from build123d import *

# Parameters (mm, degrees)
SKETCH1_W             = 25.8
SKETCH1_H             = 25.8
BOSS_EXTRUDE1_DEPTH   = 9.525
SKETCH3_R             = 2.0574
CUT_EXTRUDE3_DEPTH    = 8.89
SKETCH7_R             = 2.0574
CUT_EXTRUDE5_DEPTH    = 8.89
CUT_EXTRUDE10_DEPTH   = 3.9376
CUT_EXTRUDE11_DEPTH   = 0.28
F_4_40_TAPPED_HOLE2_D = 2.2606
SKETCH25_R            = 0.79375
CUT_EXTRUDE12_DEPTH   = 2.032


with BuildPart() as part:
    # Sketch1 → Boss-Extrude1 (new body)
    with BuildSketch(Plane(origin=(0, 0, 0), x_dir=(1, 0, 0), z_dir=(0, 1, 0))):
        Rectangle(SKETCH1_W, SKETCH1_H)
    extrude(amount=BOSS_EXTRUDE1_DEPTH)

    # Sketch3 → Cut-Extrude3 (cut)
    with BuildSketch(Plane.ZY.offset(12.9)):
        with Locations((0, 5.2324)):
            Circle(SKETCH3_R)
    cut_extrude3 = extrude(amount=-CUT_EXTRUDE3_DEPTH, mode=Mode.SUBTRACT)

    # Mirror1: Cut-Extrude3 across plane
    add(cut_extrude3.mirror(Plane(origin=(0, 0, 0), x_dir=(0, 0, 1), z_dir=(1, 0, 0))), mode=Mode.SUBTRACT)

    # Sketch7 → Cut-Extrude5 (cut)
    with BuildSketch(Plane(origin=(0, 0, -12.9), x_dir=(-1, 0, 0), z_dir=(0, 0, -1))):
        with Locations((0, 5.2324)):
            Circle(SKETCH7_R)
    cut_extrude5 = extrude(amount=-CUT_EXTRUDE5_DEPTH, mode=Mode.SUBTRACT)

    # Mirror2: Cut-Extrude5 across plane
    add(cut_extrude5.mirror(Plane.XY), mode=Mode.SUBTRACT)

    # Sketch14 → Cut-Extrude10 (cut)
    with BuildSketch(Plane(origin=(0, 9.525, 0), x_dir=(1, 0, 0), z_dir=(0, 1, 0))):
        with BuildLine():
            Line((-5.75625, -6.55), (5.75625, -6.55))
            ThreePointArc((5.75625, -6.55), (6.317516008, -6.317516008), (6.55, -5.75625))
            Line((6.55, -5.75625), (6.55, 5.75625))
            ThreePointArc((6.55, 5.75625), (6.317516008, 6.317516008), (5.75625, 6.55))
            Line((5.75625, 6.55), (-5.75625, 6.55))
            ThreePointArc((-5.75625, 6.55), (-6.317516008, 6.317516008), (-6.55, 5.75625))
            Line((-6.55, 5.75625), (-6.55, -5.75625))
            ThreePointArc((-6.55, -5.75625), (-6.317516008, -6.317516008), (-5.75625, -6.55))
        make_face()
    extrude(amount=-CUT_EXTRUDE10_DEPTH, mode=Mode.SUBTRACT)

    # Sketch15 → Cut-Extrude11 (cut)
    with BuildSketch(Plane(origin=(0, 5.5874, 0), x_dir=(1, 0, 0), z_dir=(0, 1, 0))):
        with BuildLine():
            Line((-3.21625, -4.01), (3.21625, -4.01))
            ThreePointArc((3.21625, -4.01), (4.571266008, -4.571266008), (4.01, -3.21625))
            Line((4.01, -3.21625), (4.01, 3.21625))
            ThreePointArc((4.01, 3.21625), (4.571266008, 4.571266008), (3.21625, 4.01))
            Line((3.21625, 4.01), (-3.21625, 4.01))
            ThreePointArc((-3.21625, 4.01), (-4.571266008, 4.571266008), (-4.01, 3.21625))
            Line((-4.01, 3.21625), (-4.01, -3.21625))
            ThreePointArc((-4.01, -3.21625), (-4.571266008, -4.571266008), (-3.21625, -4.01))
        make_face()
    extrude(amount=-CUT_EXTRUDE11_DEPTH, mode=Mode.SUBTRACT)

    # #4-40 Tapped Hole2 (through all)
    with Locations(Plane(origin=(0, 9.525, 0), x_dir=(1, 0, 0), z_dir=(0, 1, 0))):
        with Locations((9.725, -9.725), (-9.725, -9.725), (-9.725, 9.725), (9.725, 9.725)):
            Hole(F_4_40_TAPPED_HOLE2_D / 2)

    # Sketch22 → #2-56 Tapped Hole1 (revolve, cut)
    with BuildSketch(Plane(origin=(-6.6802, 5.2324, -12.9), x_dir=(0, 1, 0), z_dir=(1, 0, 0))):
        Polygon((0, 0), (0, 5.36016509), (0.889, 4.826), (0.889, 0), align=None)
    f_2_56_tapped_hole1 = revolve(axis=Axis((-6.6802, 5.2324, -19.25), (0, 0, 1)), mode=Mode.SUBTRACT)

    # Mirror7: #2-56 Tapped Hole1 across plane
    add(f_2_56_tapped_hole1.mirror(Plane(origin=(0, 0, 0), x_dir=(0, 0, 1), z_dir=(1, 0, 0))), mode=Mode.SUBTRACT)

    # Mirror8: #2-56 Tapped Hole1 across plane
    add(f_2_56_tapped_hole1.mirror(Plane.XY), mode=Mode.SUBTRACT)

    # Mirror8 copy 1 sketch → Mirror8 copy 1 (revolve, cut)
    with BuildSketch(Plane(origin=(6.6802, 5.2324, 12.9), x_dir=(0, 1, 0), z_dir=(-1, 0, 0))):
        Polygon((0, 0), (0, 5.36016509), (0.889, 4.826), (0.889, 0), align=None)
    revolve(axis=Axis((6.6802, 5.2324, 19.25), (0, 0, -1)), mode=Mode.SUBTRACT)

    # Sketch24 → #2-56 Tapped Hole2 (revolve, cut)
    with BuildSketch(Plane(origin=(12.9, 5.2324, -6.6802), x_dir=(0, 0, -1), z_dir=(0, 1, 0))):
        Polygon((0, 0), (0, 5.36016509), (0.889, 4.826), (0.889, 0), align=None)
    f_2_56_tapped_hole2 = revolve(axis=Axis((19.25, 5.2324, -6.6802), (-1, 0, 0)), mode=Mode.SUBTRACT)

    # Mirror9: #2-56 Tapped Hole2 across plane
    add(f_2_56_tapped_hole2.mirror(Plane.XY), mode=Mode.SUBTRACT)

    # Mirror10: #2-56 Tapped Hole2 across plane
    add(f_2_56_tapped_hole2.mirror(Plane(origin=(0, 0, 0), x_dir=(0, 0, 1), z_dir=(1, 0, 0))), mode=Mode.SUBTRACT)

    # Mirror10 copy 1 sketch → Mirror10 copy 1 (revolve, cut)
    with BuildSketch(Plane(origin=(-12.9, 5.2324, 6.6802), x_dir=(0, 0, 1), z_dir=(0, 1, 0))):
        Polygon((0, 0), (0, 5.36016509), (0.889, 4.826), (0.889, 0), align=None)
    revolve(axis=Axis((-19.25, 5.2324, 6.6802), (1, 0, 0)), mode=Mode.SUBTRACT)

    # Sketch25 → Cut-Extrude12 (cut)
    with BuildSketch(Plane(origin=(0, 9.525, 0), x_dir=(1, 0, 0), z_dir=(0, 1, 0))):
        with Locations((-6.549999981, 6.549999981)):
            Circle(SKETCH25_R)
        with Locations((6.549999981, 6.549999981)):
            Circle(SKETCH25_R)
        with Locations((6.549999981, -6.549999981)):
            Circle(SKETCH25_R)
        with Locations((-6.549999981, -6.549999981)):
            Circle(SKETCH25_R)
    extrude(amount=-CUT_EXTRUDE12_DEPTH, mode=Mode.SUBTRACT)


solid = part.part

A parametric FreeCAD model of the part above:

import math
import FreeCAD as App
import Part
import Sketcher

V = App.Vector
Q = App.Units.Quantity


def add_polygon(sketch, points):
    """Adds a closed chain of lines whose ends are joined by coincident constraints."""
    first, n = sketch.GeometryCount, len(points)
    for a, b in zip(points, points[1:] + points[:1]):
        sketch.addGeometry(Part.LineSegment(App.Vector(*a, 0), App.Vector(*b, 0)), False)
    for i in range(n):
        sketch.addConstraint(Sketcher.Constraint("Coincident", first + i, 2, first + (i + 1) % n, 1))

doc = App.newDocument("Part")
body = doc.addObject("PartDesign::Body", "Body")

sketch1 = body.newObject("Sketcher::SketchObject", "Sketch")
sketch1.AttachmentSupport = (doc.getObject("XZ_Plane"), [""])
sketch1.MapMode = "FlatFace"
add_polygon(sketch1, [(-13, -13), (-13, 13), (13, 13), (13, -13)])
sketch1.addConstraint([
    Sketcher.Constraint("Vertical", 0),
    Sketcher.Constraint("Horizontal", 1),
    Sketcher.Constraint("Vertical", 2),
    Sketcher.Constraint("Horizontal", 3),
    Sketcher.Constraint("Symmetric", 0, 2, 2, 2, -1, 1),
    Sketcher.Constraint("Equal", 3, 0),
    Sketcher.Constraint("DistanceX", 1, 1, 1, 2, 25.8),
])
pad1 = body.newObject("PartDesign::Pad", "Pad")
pad1.Profile = sketch1
pad1.Length = Q("0.375 in")
pad1.Reversed = True

sketch2 = body.newObject("Sketcher::SketchObject", "Sketch001")
sketch2.AttachmentSupport = (doc.getObject("YZ_Plane"), [""])
sketch2.MapMode = "FlatFace"
sketch2.AttachmentOffset = App.Placement(V(0, 0, -12.9), App.Rotation())
sketch2.addGeometry(Part.Circle(V(5.2, 0, 0), V(0, 0, 1), 2.1), False)
sketch2.addConstraint([
    Sketcher.Constraint("PointOnObject", 0, 3, -1),
    Sketcher.Constraint("Diameter", 0, Q("0.162 in")),
    Sketcher.Constraint("DistanceX", -1, 1, 0, 3, Q("0.206 in")),
])
pocket1 = body.newObject("PartDesign::Pocket", "Pocket")
pocket1.Profile = sketch2
pocket1.Length = Q("0.35 in")
pocket1.Reversed = True
doc.recompute()

mirrored = body.newObject("PartDesign::Mirrored", "Mirrored")
mirrored.Originals = [pocket1]
mirrored.MirrorPlane = (doc.getObject("YZ_Plane"), [""])
body.Tip = mirrored

sketch3 = body.newObject("Sketcher::SketchObject", "Sketch002")
sketch3.AttachmentSupport = (doc.getObject("XY_Plane"), [""])
sketch3.MapMode = "FlatFace"
sketch3.AttachmentOffset = App.Placement(V(0, 0, -12.9), App.Rotation())
sketch3.addGeometry(Part.Circle(V(0, 5.2, 0), V(0, 0, 1), 2.1), False)
sketch3.addConstraint([
    Sketcher.Constraint("PointOnObject", 0, 3, -2),
    Sketcher.Constraint("Diameter", 0, Q("0.162 in")),
    Sketcher.Constraint("DistanceY", -1, 1, 0, 3, Q("0.206 in")),
])
pocket2 = body.newObject("PartDesign::Pocket", "Pocket001")
pocket2.Profile = sketch3
pocket2.Length = Q("0.35 in")
pocket2.Reversed = True
doc.recompute()

mirrored2 = body.newObject("PartDesign::Mirrored", "Mirrored001")
mirrored2.Originals = [pocket2]
mirrored2.MirrorPlane = (doc.getObject("XY_Plane"), [""])
body.Tip = mirrored2

sketch4 = body.newObject("Sketcher::SketchObject", "Sketch003")
sketch4.AttachmentSupport = (doc.getObject("XZ_Plane"), [""])
sketch4.MapMode = "FlatFace"
sketch4.AttachmentOffset = App.Placement(V(0, 0, -0.375 * 25.4), App.Rotation())
sketch4.addGeometry([
    Part.LineSegment(V(-5.8, 6.5, 0), V(5.8, 6.5, 0)),
    Part.ArcOfCircle(Part.Circle(V(5.8, 5.8, 0), V(0, 0, 1), 0.8), math.radians(0), math.radians(90)),
    Part.LineSegment(V(6.5, 5.8, 0), V(6.5, -5.8, 0)),
    Part.ArcOfCircle(Part.Circle(V(5.8, -5.8, 0), V(0, 0, 1), 0.8), math.radians(-90), math.radians(0)),
    Part.LineSegment(V(5.8, -6.5, 0), V(-5.8, -6.5, 0)),
    Part.ArcOfCircle(Part.Circle(V(-5.8, -5.8, 0), V(0, 0, 1), 0.8), math.radians(180), math.radians(270)),
    Part.LineSegment(V(-6.5, -5.8, 0), V(-6.5, 5.8, 0)),
    Part.ArcOfCircle(Part.Circle(V(-5.8, 5.8, 0), V(0, 0, 1), 0.8), math.radians(90), math.radians(180)),
], False)
sketch4.addConstraint([
    Sketcher.Constraint("Tangent", 0, 2, 1, 2),
    Sketcher.Constraint("Tangent", 1, 1, 2, 1),
    Sketcher.Constraint("Tangent", 2, 2, 3, 2),
    Sketcher.Constraint("Tangent", 3, 1, 4, 1),
    Sketcher.Constraint("Tangent", 4, 2, 5, 2),
    Sketcher.Constraint("Tangent", 5, 1, 6, 1),
    Sketcher.Constraint("Tangent", 6, 2, 7, 2),
    Sketcher.Constraint("Tangent", 7, 1, 0, 1),
    Sketcher.Constraint("Horizontal", 0),
    Sketcher.Constraint("Vertical", 2),
    Sketcher.Constraint("Horizontal", 4),
    Sketcher.Constraint("Vertical", 6),
    Sketcher.Constraint("Equal", 1, 3),
    Sketcher.Constraint("Equal", 3, 5),
    Sketcher.Constraint("Equal", 5, 7),
    Sketcher.Constraint("Symmetric", 1, 3, 5, 3, -1, 1),
    Sketcher.Constraint("Equal", 4, 2),
    Sketcher.Constraint("Radius", 1, Q("0.03125 in")),
    Sketcher.Constraint("DistanceX", 0, 1, 0, 2, 11.5125),
])
pocket3 = body.newObject("PartDesign::Pocket", "Pocket002")
pocket3.Profile = sketch4
pocket3.Length = 3.9376
pocket3.Reversed = True

sketch5 = body.newObject("Sketcher::SketchObject", "Sketch004")
sketch5.AttachmentSupport = (doc.getObject("XZ_Plane"), [""])
sketch5.MapMode = "FlatFace"
sketch5.AttachmentOffset = App.Placement(V(0, 0, -5.5874), App.Rotation())
sketch5.addGeometry([
    Part.LineSegment(V(-3.2, 4, 0), V(3.2, 4, 0)),
    Part.ArcOfCircle(Part.Circle(V(4, 4, 0), V(0, 0, 1), 0.8), math.radians(-90), math.radians(180)),
    Part.LineSegment(V(4, 3.2, 0), V(4, -3.2, 0)),
    Part.ArcOfCircle(Part.Circle(V(4, -4, 0), V(0, 0, 1), 0.8), math.radians(180), math.radians(450)),
    Part.LineSegment(V(3.2, -4, 0), V(-3.2, -4, 0)),
    Part.ArcOfCircle(Part.Circle(V(-4, -4, 0), V(0, 0, 1), 0.8), math.radians(90), math.radians(360)),
    Part.LineSegment(V(-4, -3.2, 0), V(-4, 3.2, 0)),
    Part.ArcOfCircle(Part.Circle(V(-4, 4, 0), V(0, 0, 1), 0.8), math.radians(0), math.radians(270)),
], False)
sketch5.addConstraint([
    Sketcher.Constraint("Coincident", 0, 2, 1, 2),
    Sketcher.Constraint("Coincident", 1, 1, 2, 1),
    Sketcher.Constraint("Coincident", 2, 2, 3, 2),
    Sketcher.Constraint("Coincident", 3, 1, 4, 1),
    Sketcher.Constraint("Coincident", 4, 2, 5, 2),
    Sketcher.Constraint("Coincident", 5, 1, 6, 1),
    Sketcher.Constraint("Coincident", 6, 2, 7, 2),
    Sketcher.Constraint("Coincident", 7, 1, 0, 1),
    Sketcher.Constraint("Horizontal", 0),
    Sketcher.Constraint("Vertical", 2),
    Sketcher.Constraint("Horizontal", 4),
    Sketcher.Constraint("Vertical", 6),
    Sketcher.Constraint("Equal", 1, 3),
    Sketcher.Constraint("Equal", 3, 5),
    Sketcher.Constraint("Equal", 5, 7),
    Sketcher.Constraint("Symmetric", 1, 3, 5, 3, -1, 1),
    Sketcher.Constraint("Symmetric", 3, 3, 7, 3, -1, 1),
    Sketcher.Constraint("Symmetric", 3, 3, 5, 3, -2),
    Sketcher.Constraint("Horizontal", 7, 3, 0, 2),
    Sketcher.Constraint("Horizontal", 5, 3, 3, 1),
    Sketcher.Constraint("Vertical", 3, 3, 1, 1),
    Sketcher.Constraint("Vertical", 7, 3, 5, 1),
    Sketcher.Constraint("Equal", 4, 2),
    Sketcher.Constraint("Radius", 1, Q("0.03125 in")),
    Sketcher.Constraint("DistanceX", 0, 1, 0, 2, 6.4325),
])
pocket4 = body.newObject("PartDesign::Pocket", "Pocket003")
pocket4.Profile = sketch5
pocket4.Length = 0.28
pocket4.Reversed = True

sketch6 = body.newObject("Sketcher::SketchObject", "Sketch005")
sketch6.AttachmentSupport = (doc.getObject("XZ_Plane"), [""])
sketch6.MapMode = "FlatFace"
sketch6.AttachmentOffset = App.Placement(V(0, 0, -0.375 * 25.4), App.Rotation())
sketch6.addGeometry([
    Part.Circle(V(9.7, 9.7, 0), V(0, 0, 1), 1.1),
    Part.Circle(V(-9.7, 9.7, 0), V(0, 0, 1), 1.1),
    Part.Circle(V(-9.7, -9.7, 0), V(0, 0, 1), 1.1),
    Part.Circle(V(9.7, -9.7, 0), V(0, 0, 1), 1.1),
], False)
sketch6.addConstraint([
    Sketcher.Constraint("Equal", 0, 1),
    Sketcher.Constraint("Equal", 1, 2),
    Sketcher.Constraint("Equal", 2, 3),
    Sketcher.Constraint("Symmetric", 0, 3, 2, 3, -1, 1),
    Sketcher.Constraint("Symmetric", 1, 3, 3, 3, -1, 1),
    Sketcher.Constraint("Symmetric", 0, 3, 1, 3, -2),
    Sketcher.Constraint("Diameter", 0, Q("0.089 in")),
    Sketcher.Constraint("DistanceX", -1, 1, 0, 3, 9.725),
    Sketcher.Constraint("DistanceY", -1, 1, 0, 3, 9.725),
])
doc.recompute()
hole = body.newObject("PartDesign::Hole", "Hole")
hole.Profile = sketch6
hole.ThreadType = "None"
hole.Diameter = Q("0.089 in")
hole.DepthType = "ThroughAll"
hole.Reversed = True

sketch7 = body.newObject("Sketcher::SketchObject", "Sketch006")
sketch7.AttachmentSupport = (doc.getObject("YZ_Plane"), [""])
sketch7.MapMode = "FlatFace"
sketch7.AttachmentOffset = App.Placement(V(0, 0, -0.263 * 25.4), App.Rotation())
add_polygon(sketch7, [(5.2, -7.5), (5.2, -12.9), (6.1, -12.9), (6.1, -8.1)])
sketch7.addGeometry(Part.LineSegment(V(5.2, -12.9, 0), V(5.2, -7.5, 0)), True)
sketch7.addConstraint([
    Sketcher.Constraint("Vertical", 0),
    Sketcher.Constraint("Horizontal", 1),
    Sketcher.Constraint("Vertical", 2),
    Sketcher.Constraint("Vertical", 4),
    Sketcher.Constraint("Coincident", 4, 1, 0, 2),
    Sketcher.Constraint("Equal", 0, 4),
    Sketcher.Constraint("Angle", 3, Q("149 deg")),
    Sketcher.Constraint("DistanceY", 2, 1, 2, 2, Q("0.19 in")),
    Sketcher.Constraint("DistanceX", 1, 1, 1, 2, Q("0.035 in")),
    Sketcher.Constraint("DistanceX", -1, 1, 0, 2, Q("0.206 in")),
    Sketcher.Constraint("DistanceY", 0, 2, -1, 1, 12.9),
])
groove = body.newObject("PartDesign::Groove", "Groove")
groove.Profile = sketch7
groove.ReferenceAxis = (sketch7, ["Axis0"])
groove.Angle = 360
doc.recompute()

mirrored3 = body.newObject("PartDesign::Mirrored", "Mirrored002")
mirrored3.Originals = [groove]
mirrored3.MirrorPlane = (doc.getObject("YZ_Plane"), [""])
body.Tip = mirrored3
doc.recompute()

mirrored4 = body.newObject("PartDesign::Mirrored", "Mirrored003")
mirrored4.Originals = [groove]
mirrored4.MirrorPlane = (doc.getObject("XY_Plane"), [""])
body.Tip = mirrored4

sketch8 = body.newObject("Sketcher::SketchObject", "Sketch007")
sketch8.AttachmentSupport = (doc.getObject("YZ_Plane"), [""])
sketch8.MapMode = "FlatFace"
sketch8.AttachmentOffset = App.Placement(V(0, 0, 0.263 * 25.4), App.Rotation())
add_polygon(sketch8, [(5.2, 7.5), (5.2, 12.9), (6.1, 12.9), (6.1, 8.1)])
sketch8.addGeometry(Part.LineSegment(V(5.2, 12.9, 0), V(5.2, 7.5, 0)), True)
sketch8.addConstraint([
    Sketcher.Constraint("Vertical", 0),
    Sketcher.Constraint("Horizontal", 1),
    Sketcher.Constraint("Vertical", 2),
    Sketcher.Constraint("Vertical", 4),
    Sketcher.Constraint("Coincident", 4, 1, 0, 2),
    Sketcher.Constraint("Equal", 0, 4),
    Sketcher.Constraint("Angle", 3, Q("-149 deg")),
    Sketcher.Constraint("DistanceY", 2, 2, 2, 1, Q("0.19 in")),
    Sketcher.Constraint("DistanceX", 1, 1, 1, 2, Q("0.035 in")),
    Sketcher.Constraint("DistanceX", -1, 1, 0, 2, Q("0.206 in")),
    Sketcher.Constraint("DistanceY", -1, 1, 0, 2, 12.9),
])
groove2 = body.newObject("PartDesign::Groove", "Groove001")
groove2.Profile = sketch8
groove2.ReferenceAxis = (sketch8, ["Axis0"])
groove2.Angle = 360

sketch9 = body.newObject("Sketcher::SketchObject", "Sketch008")
sketch9.AttachmentSupport = (doc.getObject("XZ_Plane"), [""])
sketch9.MapMode = "FlatFace"
sketch9.AttachmentOffset = App.Placement(V(0, 0, -0.206 * 25.4), App.Rotation())
add_polygon(sketch9, [(7.5, -6.7), (12.9, -6.7), (12.9, -7.6), (8.1, -7.6)])
sketch9.addGeometry(Part.LineSegment(V(12.9, -6.7, 0), V(7.5, -6.7, 0)), True)
sketch9.addConstraint([
    Sketcher.Constraint("Horizontal", 0),
    Sketcher.Constraint("Vertical", 1),
    Sketcher.Constraint("Horizontal", 2),
    Sketcher.Constraint("Horizontal", 4),
    Sketcher.Constraint("Coincident", 4, 1, 0, 2),
    Sketcher.Constraint("Equal", 0, 4),
    Sketcher.Constraint("Angle", 3, Q("121 deg")),
    Sketcher.Constraint("DistanceX", 2, 2, 2, 1, Q("0.19 in")),
    Sketcher.Constraint("DistanceY", 1, 2, 1, 1, Q("0.035 in")),
    Sketcher.Constraint("DistanceY", 0, 2, -1, 1, Q("0.263 in")),
    Sketcher.Constraint("DistanceX", -1, 1, 0, 2, 12.9),
])
groove3 = body.newObject("PartDesign::Groove", "Groove002")
groove3.Profile = sketch9
groove3.ReferenceAxis = (sketch9, ["Axis0"])
groove3.Angle = 360
doc.recompute()

mirrored5 = body.newObject("PartDesign::Mirrored", "Mirrored004")
mirrored5.Originals = [groove3]
mirrored5.MirrorPlane = (doc.getObject("XY_Plane"), [""])
body.Tip = mirrored5
doc.recompute()

mirrored6 = body.newObject("PartDesign::Mirrored", "Mirrored005")
mirrored6.Originals = [groove3]
mirrored6.MirrorPlane = (doc.getObject("YZ_Plane"), [""])
body.Tip = mirrored6

sketch10 = body.newObject("Sketcher::SketchObject", "Sketch009")
sketch10.AttachmentSupport = (doc.getObject("XZ_Plane"), [""])
sketch10.MapMode = "FlatFace"
sketch10.AttachmentOffset = App.Placement(V(0, 0, -0.206 * 25.4), App.Rotation())
add_polygon(sketch10, [(-7.5, 6.7), (-12.9, 6.7), (-12.9, 7.6), (-8.1, 7.6)])
sketch10.addGeometry(Part.LineSegment(V(-12.9, 6.7, 0), V(-7.5, 6.7, 0)), True)
sketch10.addConstraint([
    Sketcher.Constraint("Horizontal", 0),
    Sketcher.Constraint("Vertical", 1),
    Sketcher.Constraint("Horizontal", 2),
    Sketcher.Constraint("Horizontal", 4),
    Sketcher.Constraint("Coincident", 4, 1, 0, 2),
    Sketcher.Constraint("Equal", 0, 4),
    Sketcher.Constraint("Angle", 3, Q("-59 deg")),
    Sketcher.Constraint("DistanceX", 2, 1, 2, 2, Q("0.19 in")),
    Sketcher.Constraint("DistanceY", 1, 1, 1, 2, Q("0.035 in")),
    Sketcher.Constraint("DistanceY", -1, 1, 0, 2, Q("0.263 in")),
    Sketcher.Constraint("DistanceX", 0, 2, -1, 1, 12.9),
])
groove4 = body.newObject("PartDesign::Groove", "Groove003")
groove4.Profile = sketch10
groove4.ReferenceAxis = (sketch10, ["Axis0"])
groove4.Angle = 360

sketch11 = body.newObject("Sketcher::SketchObject", "Sketch010")
sketch11.AttachmentSupport = (doc.getObject("XZ_Plane"), [""])
sketch11.MapMode = "FlatFace"
sketch11.AttachmentOffset = App.Placement(V(0, 0, -0.375 * 25.4), App.Rotation())
sketch11.addGeometry([
    Part.Circle(V(-6.5, -6.5, 0), V(0, 0, 1), 0.8),
    Part.Circle(V(6.5, -6.5, 0), V(0, 0, 1), 0.8),
    Part.Circle(V(6.5, 6.5, 0), V(0, 0, 1), 0.8),
    Part.Circle(V(-6.5, 6.5, 0), V(0, 0, 1), 0.8),
], False)
sketch11.addConstraint([
    Sketcher.Constraint("Equal", 0, 1),
    Sketcher.Constraint("Equal", 1, 2),
    Sketcher.Constraint("Equal", 2, 3),
    Sketcher.Constraint("Symmetric", 0, 3, 2, 3, -1, 1),
    Sketcher.Constraint("Symmetric", 1, 3, 3, 3, -1, 1),
    Sketcher.Constraint("Symmetric", 0, 3, 1, 3, -2),
    Sketcher.Constraint("Diameter", 0, Q("0.0625 in")),
    Sketcher.Constraint("DistanceX", 0, 3, -1, 1, 6.55),
    Sketcher.Constraint("DistanceY", 0, 3, -1, 1, 6.55),
])
pocket5 = body.newObject("PartDesign::Pocket", "Pocket004")
pocket5.Profile = sketch11
pocket5.Length = Q("0.08 in")
pocket5.Reversed = True

doc.recompute()
